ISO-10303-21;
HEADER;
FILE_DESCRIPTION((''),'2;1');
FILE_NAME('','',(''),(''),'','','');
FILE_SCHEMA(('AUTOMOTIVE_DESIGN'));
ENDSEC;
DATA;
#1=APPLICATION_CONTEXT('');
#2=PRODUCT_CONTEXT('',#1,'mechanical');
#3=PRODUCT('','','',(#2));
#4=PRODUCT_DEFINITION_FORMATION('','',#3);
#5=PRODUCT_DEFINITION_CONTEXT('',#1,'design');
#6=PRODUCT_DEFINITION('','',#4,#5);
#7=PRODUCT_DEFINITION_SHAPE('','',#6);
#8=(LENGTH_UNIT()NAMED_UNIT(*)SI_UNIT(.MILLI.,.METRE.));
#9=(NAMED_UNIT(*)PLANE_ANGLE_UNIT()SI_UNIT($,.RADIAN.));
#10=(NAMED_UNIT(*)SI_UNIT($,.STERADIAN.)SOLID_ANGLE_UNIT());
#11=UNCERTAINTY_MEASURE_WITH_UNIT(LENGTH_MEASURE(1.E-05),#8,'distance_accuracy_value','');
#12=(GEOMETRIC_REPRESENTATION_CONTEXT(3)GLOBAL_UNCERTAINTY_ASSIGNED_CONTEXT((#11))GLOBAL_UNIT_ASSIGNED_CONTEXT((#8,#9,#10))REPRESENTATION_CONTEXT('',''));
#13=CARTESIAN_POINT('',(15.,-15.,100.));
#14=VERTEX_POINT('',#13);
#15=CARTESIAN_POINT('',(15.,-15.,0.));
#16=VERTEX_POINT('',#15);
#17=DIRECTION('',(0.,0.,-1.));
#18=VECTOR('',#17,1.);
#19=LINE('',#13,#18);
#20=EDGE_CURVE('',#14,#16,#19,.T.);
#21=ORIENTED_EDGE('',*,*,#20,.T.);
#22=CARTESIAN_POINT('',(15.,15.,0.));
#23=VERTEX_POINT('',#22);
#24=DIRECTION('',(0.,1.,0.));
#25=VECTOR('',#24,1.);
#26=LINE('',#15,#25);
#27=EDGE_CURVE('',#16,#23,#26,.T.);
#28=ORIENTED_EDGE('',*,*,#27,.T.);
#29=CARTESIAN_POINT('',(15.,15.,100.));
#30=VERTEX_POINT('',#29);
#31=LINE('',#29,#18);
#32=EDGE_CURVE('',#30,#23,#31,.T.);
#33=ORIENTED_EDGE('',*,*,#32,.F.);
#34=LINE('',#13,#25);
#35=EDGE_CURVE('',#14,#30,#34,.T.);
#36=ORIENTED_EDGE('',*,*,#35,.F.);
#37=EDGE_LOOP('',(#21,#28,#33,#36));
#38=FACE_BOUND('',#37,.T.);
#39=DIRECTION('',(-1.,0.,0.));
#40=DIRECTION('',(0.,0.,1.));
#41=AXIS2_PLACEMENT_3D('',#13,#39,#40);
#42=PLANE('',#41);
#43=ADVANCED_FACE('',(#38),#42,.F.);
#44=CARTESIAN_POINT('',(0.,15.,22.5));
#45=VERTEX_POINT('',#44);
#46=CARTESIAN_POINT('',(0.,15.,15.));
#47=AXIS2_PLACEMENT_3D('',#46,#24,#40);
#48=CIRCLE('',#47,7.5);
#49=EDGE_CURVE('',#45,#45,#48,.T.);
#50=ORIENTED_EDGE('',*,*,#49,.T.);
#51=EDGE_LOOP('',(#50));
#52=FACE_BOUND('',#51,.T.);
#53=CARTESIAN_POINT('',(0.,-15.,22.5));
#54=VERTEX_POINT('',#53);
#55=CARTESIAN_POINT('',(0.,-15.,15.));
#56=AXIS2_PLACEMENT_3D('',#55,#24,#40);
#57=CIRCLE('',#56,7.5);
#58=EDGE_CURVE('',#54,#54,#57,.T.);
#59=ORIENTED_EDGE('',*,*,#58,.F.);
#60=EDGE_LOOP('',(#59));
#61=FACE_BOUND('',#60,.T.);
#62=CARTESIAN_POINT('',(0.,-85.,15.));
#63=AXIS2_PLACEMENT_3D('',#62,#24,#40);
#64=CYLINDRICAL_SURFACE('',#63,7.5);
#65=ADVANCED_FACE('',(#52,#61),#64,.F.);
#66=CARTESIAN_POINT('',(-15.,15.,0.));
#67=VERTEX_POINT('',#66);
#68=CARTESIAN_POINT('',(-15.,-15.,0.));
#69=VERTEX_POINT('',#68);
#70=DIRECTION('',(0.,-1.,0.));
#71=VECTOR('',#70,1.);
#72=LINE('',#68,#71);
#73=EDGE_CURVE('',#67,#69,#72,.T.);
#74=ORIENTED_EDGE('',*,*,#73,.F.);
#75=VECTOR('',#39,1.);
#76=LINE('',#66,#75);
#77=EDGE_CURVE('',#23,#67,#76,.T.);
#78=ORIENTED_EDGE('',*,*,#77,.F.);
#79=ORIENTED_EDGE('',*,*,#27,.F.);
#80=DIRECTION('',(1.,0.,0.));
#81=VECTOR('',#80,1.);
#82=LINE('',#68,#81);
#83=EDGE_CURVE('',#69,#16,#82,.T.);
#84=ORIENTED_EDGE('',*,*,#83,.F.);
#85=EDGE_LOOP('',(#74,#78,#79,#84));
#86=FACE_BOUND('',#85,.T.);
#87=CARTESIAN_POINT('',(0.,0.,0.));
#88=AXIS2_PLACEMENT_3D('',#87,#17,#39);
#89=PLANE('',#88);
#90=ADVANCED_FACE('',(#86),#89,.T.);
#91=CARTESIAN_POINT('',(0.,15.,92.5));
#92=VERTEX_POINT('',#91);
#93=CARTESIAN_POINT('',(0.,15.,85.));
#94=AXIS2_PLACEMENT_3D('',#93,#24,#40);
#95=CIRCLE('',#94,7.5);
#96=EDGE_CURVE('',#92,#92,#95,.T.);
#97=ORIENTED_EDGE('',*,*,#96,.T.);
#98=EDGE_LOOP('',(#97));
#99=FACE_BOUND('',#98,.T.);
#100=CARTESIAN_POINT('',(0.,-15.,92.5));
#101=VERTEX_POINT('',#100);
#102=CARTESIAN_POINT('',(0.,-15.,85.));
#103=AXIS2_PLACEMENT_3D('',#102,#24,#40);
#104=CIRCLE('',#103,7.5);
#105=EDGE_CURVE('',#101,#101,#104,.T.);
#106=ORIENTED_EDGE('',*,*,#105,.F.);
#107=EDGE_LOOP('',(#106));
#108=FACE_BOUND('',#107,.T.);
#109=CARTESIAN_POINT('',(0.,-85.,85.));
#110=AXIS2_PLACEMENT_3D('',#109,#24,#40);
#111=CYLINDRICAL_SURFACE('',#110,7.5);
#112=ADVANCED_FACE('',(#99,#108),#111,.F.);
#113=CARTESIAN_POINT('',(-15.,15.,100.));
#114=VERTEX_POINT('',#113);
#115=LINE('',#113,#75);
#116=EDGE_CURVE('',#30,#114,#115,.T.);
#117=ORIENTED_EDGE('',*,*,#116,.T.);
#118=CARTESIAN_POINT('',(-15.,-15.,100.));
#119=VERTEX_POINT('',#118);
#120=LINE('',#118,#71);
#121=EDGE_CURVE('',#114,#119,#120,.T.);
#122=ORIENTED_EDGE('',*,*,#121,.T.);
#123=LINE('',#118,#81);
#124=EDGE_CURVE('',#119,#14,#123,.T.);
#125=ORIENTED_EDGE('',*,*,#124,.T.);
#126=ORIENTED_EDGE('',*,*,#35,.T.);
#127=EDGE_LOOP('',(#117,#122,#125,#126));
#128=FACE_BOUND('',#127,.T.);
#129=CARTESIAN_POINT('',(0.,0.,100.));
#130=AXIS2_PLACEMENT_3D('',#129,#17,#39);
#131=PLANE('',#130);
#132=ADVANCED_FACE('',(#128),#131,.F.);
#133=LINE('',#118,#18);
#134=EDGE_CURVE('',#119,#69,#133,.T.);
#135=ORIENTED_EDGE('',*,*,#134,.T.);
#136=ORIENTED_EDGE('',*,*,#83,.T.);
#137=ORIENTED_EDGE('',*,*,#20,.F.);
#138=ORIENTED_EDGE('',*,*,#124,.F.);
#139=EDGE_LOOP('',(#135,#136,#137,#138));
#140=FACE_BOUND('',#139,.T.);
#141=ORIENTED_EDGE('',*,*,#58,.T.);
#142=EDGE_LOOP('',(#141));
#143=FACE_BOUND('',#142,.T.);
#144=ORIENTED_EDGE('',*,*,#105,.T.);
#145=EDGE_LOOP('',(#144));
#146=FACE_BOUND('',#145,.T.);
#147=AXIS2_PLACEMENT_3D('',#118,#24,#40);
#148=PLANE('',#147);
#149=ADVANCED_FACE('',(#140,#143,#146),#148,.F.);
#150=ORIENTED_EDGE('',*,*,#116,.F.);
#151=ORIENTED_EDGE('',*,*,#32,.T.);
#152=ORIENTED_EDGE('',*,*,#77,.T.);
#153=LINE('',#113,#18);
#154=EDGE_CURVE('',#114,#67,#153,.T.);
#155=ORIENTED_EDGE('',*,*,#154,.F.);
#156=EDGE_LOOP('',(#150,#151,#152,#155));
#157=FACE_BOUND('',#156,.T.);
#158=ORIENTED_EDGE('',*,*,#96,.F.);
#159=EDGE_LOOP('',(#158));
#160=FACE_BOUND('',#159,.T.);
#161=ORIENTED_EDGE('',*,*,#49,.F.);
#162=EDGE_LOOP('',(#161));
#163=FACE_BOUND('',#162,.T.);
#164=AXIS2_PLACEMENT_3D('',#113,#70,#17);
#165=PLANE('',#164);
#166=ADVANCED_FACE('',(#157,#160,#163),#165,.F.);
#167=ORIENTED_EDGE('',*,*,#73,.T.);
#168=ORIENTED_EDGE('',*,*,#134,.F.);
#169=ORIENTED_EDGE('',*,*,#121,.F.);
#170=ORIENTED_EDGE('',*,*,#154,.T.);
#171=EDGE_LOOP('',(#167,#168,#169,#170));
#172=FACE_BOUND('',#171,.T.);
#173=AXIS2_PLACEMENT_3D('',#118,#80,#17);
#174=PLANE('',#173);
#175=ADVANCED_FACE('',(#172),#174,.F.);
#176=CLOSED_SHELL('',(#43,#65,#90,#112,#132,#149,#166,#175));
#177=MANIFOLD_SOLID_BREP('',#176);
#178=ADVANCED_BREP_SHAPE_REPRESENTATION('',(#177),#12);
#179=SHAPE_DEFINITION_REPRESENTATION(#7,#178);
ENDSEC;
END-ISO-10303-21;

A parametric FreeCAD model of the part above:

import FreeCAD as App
import Part
import Sketcher
from FreeCAD import Vector

doc = App.newDocument("Part")
body = doc.addObject("PartDesign::Body", "Body")

# Sketch on XY plane
sketch1 = body.newObject("Sketcher::SketchObject", "Sketch")
sketch1.AttachmentSupport = (doc.getObject("XY_Plane"), [""])
sketch1.MapMode = "FlatFace"
sketch1.addGeometry([
    Part.LineSegment(Vector(-15, 15, 0), Vector(-15, -15, 0)),
    Part.LineSegment(Vector(-15, -15, 0), Vector(15, -15, 0)),
    Part.LineSegment(Vector(15, -15, 0), Vector(15, 15, 0)),
    Part.LineSegment(Vector(15, 15, 0), Vector(-15, 15, 0)),
], False)
sketch1.addConstraint([
    Sketcher.Constraint("Coincident", 0, 2, 1, 1),
    Sketcher.Constraint("Coincident", 1, 2, 2, 1),
    Sketcher.Constraint("Coincident", 2, 2, 3, 1),
    Sketcher.Constraint("Coincident", 3, 2, 0, 1),
    Sketcher.Constraint("Vertical", 0),
    Sketcher.Constraint("Horizontal", 1),
    Sketcher.Constraint("Vertical", 2),
    Sketcher.Constraint("Horizontal", 3),
    Sketcher.Constraint("Symmetric", 0, 2, 2, 2, -1, 1),
    Sketcher.Constraint("Equal", 3, 0),
    Sketcher.Constraint("DistanceX", 1, 1, 1, 2, 30.0),
])
pad1 = body.newObject("PartDesign::Pad", "Pad")
pad1.Profile = sketch1
pad1.Length = 100

# Sketch on XZ plane
sketch2 = body.newObject("Sketcher::SketchObject", "Sketch001")
sketch2.AttachmentSupport = (doc.getObject("XZ_Plane"), [""])
sketch2.MapMode = "FlatFace"
sketch2.AttachmentOffset = App.Placement(Vector(0, 0, -15), App.Rotation())
sketch2.addGeometry([
    Part.Circle(Vector(0, 15, 0), Vector(0, 0, 1), 7.5),
    Part.Circle(Vector(0, 85, 0), Vector(0, 0, 1), 7.5),
], False)
sketch2.addConstraint([
    Sketcher.Constraint("Equal", 0, 1),
    Sketcher.Constraint("PointOnObject", 0, 3, -2),
    Sketcher.Constraint("PointOnObject", 1, 3, -2),
    Sketcher.Constraint("Diameter", 0, 15.0),
    Sketcher.Constraint("DistanceY", -1, 1, 0, 3, 15.0),
    Sketcher.Constraint("DistanceY", -1, 1, 1, 3, 85.0),
])
pocket1 = body.newObject("PartDesign::Pocket", "Pocket")
pocket1.Profile = sketch2
pocket1.Length = 100
pocket1.Reversed = True

doc.recompute()
